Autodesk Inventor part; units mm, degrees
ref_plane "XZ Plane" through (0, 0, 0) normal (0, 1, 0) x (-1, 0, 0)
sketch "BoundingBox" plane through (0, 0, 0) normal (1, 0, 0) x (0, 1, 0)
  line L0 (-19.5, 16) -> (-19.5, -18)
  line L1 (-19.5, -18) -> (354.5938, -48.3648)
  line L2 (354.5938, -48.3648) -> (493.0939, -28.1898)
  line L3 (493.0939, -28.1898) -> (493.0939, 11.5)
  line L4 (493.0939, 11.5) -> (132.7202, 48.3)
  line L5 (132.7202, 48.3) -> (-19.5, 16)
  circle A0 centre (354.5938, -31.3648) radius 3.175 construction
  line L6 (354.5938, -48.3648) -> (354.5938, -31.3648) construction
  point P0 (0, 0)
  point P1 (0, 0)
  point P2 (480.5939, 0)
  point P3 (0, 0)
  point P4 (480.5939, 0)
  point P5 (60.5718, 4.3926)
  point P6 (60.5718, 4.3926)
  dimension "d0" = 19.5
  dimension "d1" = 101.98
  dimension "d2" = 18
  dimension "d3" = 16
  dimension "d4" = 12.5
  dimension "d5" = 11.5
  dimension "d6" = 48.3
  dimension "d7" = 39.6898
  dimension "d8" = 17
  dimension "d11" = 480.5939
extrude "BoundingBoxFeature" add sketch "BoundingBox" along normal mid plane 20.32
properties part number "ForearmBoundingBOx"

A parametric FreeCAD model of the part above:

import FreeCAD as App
import Part
import Sketcher
from FreeCAD import Vector
Q = App.Units.Quantity


def add_polygon(sketch, points):
    """Adds a closed chain of lines whose ends are joined by coincident constraints."""
    first, n = sketch.GeometryCount, len(points)
    for a, b in zip(points, points[1:] + points[:1]):
        sketch.addGeometry(Part.LineSegment(App.Vector(*a, 0), App.Vector(*b, 0)), False)
    for i in range(n):
        sketch.addConstraint(Sketcher.Constraint("Coincident", first + i, 2, first + (i + 1) % n, 1))

doc = App.newDocument("Part")
params = doc.addObject("Spreadsheet::Sheet", "Params")
for row, (alias, value) in enumerate([
    ("pad1_length", "20.32 mm"),
], start=1):
    params.set(f"A{row}", alias)
    params.set(f"B{row}", "=" + value)
    params.setAlias(f"B{row}", alias)

body = doc.addObject("PartDesign::Body", "Body")

# Sketch on YZ plane
sketch1 = body.newObject("Sketcher::SketchObject", "Sketch")
sketch1.AttachmentSupport = (doc.getObject("YZ_Plane"), [""])
sketch1.MapMode = "FlatFace"
add_polygon(sketch1, [(133, 48), (-20, 16), (-20, -18), (355, -48), (493, -28), (493, 12)])  # lines 0-5
sketch1.addConstraint([
    Sketcher.Constraint("Vertical", 1),
    Sketcher.Constraint("Vertical", 4),
    Sketcher.Constraint("DistanceY", -1, 1, 0, 2, Q("16 mm")),
    Sketcher.Constraint("DistanceY", 1, 2, -1, 1, Q("18 mm")),
    Sketcher.Constraint("DistanceX", 0, 2, -1, 1, Q("19.5 mm")),
    Sketcher.Constraint("DistanceY", -1, 1, 4, 2, Q("11.5 mm")),
    Sketcher.Constraint("DistanceY", -1, 1, 5, 2, Q("48.3 mm")),
    Sketcher.Constraint("DistanceY", 4, 1, 4, 2, Q("39.6898 mm")),
    Sketcher.Constraint("Angle", 0, Q("-168.02 deg")),
    Sketcher.Constraint("Angle", 2, Q("-4.6405 deg")),
    Sketcher.Constraint("Angle", 5, Q("174.1694 deg")),
    Sketcher.Constraint("DistanceX", 2, 2, 3, 2, Q("138.5 mm")),
])
pad1 = body.newObject("PartDesign::Pad", "Pad")
pad1.Profile = sketch1
pad1.setExpression("Length", "Params.pad1_length")
pad1.Midplane = True

doc.recompute()
